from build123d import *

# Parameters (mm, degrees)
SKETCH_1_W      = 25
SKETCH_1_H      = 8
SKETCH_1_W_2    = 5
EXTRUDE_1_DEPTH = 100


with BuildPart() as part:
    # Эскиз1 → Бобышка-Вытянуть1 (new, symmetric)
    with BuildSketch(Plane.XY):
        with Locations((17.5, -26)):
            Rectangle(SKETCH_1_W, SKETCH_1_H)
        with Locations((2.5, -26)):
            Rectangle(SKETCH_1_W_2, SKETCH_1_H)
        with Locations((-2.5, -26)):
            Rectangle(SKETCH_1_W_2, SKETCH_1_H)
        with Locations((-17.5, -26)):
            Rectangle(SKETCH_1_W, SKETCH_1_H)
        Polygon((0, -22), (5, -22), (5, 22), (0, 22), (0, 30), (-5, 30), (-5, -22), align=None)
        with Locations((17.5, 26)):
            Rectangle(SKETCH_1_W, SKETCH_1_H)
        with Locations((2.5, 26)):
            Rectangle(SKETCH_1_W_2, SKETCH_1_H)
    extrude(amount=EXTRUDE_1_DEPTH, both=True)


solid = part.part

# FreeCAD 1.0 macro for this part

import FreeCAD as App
import Part
import Sketcher
from FreeCAD import Vector
Q = App.Units.Quantity

doc = App.newDocument("Part")
body = doc.addObject("PartDesign::Body", "Body")

sketch1 = body.newObject("Sketcher::SketchObject", "Sketch")
sketch1.AttachmentSupport = (doc.getObject("XY_Plane"), [""])
sketch1.MapMode = "FlatFace"
sketch1.addGeometry([
    Part.LineSegment(Vector(30, -30, 0), Vector(30, -22, 0)),
    Part.LineSegment(Vector(30, -22, 0), Vector(5, -22, 0)),
    Part.LineSegment(Vector(5, -22, 0), Vector(5, 22, 0)),
    Part.LineSegment(Vector(5, 22, 0), Vector(30, 22, 0)),
    Part.LineSegment(Vector(30, 22, 0), Vector(30, 30, 0)),
    Part.LineSegment(Vector(30, 30, 0), Vector(-5, 30, 0)),
    Part.LineSegment(Vector(-5, 30, 0), Vector(-5, -22, 0)),
    Part.LineSegment(Vector(-5, -22, 0), Vector(-30, -22, 0)),
    Part.LineSegment(Vector(-30, -22, 0), Vector(-30, -30, 0)),
    Part.LineSegment(Vector(-30, -30, 0), Vector(30, -30, 0)),
], False)
sketch1.addConstraint([
    Sketcher.Constraint("Coincident", 0, 2, 1, 1),
    Sketcher.Constraint("Coincident", 1, 2, 2, 1),
    Sketcher.Constraint("Coincident", 2, 2, 3, 1),
    Sketcher.Constraint("Coincident", 3, 2, 4, 1),
    Sketcher.Constraint("Coincident", 4, 2, 5, 1),
    Sketcher.Constraint("Coincident", 5, 2, 6, 1),
    Sketcher.Constraint("Coincident", 6, 2, 7, 1),
    Sketcher.Constraint("Coincident", 7, 2, 8, 1),
    Sketcher.Constraint("Coincident", 8, 2, 9, 1),
    Sketcher.Constraint("Coincident", 9, 2, 0, 1),
    Sketcher.Constraint("Vertical", 0),
    Sketcher.Constraint("Horizontal", 1),
    Sketcher.Constraint("Vertical", 2),
    Sketcher.Constraint("Horizontal", 3),
    Sketcher.Constraint("Vertical", 4),
    Sketcher.Constraint("Horizontal", 5),
    Sketcher.Constraint("Vertical", 6),
    Sketcher.Constraint("Horizontal", 7),
    Sketcher.Constraint("Vertical", 8),
    Sketcher.Constraint("Horizontal", 9),
    Sketcher.Constraint("Symmetric", 2, 2, 6, 2, -1, 1),
    Sketcher.Constraint("Symmetric", 4, 2, 8, 2, -1, 1),
    Sketcher.Constraint("Symmetric", 0, 2, 7, 2, -2),
    Sketcher.Constraint("DistanceX", 1, 2, 1, 1, Q("25 mm")),
    Sketcher.Constraint("DistanceX", 5, 2, 5, 1, Q("35 mm")),
    Sketcher.Constraint("DistanceY", 0, 1, 0, 2, Q("8 mm")),
    Sketcher.Constraint("DistanceY", 2, 1, 2, 2, Q("44 mm")),
])
pad1 = body.newObject("PartDesign::Pad", "Pad")
pad1.Profile = sketch1
pad1.Length = 200
pad1.Midplane = True

doc.recompute()
